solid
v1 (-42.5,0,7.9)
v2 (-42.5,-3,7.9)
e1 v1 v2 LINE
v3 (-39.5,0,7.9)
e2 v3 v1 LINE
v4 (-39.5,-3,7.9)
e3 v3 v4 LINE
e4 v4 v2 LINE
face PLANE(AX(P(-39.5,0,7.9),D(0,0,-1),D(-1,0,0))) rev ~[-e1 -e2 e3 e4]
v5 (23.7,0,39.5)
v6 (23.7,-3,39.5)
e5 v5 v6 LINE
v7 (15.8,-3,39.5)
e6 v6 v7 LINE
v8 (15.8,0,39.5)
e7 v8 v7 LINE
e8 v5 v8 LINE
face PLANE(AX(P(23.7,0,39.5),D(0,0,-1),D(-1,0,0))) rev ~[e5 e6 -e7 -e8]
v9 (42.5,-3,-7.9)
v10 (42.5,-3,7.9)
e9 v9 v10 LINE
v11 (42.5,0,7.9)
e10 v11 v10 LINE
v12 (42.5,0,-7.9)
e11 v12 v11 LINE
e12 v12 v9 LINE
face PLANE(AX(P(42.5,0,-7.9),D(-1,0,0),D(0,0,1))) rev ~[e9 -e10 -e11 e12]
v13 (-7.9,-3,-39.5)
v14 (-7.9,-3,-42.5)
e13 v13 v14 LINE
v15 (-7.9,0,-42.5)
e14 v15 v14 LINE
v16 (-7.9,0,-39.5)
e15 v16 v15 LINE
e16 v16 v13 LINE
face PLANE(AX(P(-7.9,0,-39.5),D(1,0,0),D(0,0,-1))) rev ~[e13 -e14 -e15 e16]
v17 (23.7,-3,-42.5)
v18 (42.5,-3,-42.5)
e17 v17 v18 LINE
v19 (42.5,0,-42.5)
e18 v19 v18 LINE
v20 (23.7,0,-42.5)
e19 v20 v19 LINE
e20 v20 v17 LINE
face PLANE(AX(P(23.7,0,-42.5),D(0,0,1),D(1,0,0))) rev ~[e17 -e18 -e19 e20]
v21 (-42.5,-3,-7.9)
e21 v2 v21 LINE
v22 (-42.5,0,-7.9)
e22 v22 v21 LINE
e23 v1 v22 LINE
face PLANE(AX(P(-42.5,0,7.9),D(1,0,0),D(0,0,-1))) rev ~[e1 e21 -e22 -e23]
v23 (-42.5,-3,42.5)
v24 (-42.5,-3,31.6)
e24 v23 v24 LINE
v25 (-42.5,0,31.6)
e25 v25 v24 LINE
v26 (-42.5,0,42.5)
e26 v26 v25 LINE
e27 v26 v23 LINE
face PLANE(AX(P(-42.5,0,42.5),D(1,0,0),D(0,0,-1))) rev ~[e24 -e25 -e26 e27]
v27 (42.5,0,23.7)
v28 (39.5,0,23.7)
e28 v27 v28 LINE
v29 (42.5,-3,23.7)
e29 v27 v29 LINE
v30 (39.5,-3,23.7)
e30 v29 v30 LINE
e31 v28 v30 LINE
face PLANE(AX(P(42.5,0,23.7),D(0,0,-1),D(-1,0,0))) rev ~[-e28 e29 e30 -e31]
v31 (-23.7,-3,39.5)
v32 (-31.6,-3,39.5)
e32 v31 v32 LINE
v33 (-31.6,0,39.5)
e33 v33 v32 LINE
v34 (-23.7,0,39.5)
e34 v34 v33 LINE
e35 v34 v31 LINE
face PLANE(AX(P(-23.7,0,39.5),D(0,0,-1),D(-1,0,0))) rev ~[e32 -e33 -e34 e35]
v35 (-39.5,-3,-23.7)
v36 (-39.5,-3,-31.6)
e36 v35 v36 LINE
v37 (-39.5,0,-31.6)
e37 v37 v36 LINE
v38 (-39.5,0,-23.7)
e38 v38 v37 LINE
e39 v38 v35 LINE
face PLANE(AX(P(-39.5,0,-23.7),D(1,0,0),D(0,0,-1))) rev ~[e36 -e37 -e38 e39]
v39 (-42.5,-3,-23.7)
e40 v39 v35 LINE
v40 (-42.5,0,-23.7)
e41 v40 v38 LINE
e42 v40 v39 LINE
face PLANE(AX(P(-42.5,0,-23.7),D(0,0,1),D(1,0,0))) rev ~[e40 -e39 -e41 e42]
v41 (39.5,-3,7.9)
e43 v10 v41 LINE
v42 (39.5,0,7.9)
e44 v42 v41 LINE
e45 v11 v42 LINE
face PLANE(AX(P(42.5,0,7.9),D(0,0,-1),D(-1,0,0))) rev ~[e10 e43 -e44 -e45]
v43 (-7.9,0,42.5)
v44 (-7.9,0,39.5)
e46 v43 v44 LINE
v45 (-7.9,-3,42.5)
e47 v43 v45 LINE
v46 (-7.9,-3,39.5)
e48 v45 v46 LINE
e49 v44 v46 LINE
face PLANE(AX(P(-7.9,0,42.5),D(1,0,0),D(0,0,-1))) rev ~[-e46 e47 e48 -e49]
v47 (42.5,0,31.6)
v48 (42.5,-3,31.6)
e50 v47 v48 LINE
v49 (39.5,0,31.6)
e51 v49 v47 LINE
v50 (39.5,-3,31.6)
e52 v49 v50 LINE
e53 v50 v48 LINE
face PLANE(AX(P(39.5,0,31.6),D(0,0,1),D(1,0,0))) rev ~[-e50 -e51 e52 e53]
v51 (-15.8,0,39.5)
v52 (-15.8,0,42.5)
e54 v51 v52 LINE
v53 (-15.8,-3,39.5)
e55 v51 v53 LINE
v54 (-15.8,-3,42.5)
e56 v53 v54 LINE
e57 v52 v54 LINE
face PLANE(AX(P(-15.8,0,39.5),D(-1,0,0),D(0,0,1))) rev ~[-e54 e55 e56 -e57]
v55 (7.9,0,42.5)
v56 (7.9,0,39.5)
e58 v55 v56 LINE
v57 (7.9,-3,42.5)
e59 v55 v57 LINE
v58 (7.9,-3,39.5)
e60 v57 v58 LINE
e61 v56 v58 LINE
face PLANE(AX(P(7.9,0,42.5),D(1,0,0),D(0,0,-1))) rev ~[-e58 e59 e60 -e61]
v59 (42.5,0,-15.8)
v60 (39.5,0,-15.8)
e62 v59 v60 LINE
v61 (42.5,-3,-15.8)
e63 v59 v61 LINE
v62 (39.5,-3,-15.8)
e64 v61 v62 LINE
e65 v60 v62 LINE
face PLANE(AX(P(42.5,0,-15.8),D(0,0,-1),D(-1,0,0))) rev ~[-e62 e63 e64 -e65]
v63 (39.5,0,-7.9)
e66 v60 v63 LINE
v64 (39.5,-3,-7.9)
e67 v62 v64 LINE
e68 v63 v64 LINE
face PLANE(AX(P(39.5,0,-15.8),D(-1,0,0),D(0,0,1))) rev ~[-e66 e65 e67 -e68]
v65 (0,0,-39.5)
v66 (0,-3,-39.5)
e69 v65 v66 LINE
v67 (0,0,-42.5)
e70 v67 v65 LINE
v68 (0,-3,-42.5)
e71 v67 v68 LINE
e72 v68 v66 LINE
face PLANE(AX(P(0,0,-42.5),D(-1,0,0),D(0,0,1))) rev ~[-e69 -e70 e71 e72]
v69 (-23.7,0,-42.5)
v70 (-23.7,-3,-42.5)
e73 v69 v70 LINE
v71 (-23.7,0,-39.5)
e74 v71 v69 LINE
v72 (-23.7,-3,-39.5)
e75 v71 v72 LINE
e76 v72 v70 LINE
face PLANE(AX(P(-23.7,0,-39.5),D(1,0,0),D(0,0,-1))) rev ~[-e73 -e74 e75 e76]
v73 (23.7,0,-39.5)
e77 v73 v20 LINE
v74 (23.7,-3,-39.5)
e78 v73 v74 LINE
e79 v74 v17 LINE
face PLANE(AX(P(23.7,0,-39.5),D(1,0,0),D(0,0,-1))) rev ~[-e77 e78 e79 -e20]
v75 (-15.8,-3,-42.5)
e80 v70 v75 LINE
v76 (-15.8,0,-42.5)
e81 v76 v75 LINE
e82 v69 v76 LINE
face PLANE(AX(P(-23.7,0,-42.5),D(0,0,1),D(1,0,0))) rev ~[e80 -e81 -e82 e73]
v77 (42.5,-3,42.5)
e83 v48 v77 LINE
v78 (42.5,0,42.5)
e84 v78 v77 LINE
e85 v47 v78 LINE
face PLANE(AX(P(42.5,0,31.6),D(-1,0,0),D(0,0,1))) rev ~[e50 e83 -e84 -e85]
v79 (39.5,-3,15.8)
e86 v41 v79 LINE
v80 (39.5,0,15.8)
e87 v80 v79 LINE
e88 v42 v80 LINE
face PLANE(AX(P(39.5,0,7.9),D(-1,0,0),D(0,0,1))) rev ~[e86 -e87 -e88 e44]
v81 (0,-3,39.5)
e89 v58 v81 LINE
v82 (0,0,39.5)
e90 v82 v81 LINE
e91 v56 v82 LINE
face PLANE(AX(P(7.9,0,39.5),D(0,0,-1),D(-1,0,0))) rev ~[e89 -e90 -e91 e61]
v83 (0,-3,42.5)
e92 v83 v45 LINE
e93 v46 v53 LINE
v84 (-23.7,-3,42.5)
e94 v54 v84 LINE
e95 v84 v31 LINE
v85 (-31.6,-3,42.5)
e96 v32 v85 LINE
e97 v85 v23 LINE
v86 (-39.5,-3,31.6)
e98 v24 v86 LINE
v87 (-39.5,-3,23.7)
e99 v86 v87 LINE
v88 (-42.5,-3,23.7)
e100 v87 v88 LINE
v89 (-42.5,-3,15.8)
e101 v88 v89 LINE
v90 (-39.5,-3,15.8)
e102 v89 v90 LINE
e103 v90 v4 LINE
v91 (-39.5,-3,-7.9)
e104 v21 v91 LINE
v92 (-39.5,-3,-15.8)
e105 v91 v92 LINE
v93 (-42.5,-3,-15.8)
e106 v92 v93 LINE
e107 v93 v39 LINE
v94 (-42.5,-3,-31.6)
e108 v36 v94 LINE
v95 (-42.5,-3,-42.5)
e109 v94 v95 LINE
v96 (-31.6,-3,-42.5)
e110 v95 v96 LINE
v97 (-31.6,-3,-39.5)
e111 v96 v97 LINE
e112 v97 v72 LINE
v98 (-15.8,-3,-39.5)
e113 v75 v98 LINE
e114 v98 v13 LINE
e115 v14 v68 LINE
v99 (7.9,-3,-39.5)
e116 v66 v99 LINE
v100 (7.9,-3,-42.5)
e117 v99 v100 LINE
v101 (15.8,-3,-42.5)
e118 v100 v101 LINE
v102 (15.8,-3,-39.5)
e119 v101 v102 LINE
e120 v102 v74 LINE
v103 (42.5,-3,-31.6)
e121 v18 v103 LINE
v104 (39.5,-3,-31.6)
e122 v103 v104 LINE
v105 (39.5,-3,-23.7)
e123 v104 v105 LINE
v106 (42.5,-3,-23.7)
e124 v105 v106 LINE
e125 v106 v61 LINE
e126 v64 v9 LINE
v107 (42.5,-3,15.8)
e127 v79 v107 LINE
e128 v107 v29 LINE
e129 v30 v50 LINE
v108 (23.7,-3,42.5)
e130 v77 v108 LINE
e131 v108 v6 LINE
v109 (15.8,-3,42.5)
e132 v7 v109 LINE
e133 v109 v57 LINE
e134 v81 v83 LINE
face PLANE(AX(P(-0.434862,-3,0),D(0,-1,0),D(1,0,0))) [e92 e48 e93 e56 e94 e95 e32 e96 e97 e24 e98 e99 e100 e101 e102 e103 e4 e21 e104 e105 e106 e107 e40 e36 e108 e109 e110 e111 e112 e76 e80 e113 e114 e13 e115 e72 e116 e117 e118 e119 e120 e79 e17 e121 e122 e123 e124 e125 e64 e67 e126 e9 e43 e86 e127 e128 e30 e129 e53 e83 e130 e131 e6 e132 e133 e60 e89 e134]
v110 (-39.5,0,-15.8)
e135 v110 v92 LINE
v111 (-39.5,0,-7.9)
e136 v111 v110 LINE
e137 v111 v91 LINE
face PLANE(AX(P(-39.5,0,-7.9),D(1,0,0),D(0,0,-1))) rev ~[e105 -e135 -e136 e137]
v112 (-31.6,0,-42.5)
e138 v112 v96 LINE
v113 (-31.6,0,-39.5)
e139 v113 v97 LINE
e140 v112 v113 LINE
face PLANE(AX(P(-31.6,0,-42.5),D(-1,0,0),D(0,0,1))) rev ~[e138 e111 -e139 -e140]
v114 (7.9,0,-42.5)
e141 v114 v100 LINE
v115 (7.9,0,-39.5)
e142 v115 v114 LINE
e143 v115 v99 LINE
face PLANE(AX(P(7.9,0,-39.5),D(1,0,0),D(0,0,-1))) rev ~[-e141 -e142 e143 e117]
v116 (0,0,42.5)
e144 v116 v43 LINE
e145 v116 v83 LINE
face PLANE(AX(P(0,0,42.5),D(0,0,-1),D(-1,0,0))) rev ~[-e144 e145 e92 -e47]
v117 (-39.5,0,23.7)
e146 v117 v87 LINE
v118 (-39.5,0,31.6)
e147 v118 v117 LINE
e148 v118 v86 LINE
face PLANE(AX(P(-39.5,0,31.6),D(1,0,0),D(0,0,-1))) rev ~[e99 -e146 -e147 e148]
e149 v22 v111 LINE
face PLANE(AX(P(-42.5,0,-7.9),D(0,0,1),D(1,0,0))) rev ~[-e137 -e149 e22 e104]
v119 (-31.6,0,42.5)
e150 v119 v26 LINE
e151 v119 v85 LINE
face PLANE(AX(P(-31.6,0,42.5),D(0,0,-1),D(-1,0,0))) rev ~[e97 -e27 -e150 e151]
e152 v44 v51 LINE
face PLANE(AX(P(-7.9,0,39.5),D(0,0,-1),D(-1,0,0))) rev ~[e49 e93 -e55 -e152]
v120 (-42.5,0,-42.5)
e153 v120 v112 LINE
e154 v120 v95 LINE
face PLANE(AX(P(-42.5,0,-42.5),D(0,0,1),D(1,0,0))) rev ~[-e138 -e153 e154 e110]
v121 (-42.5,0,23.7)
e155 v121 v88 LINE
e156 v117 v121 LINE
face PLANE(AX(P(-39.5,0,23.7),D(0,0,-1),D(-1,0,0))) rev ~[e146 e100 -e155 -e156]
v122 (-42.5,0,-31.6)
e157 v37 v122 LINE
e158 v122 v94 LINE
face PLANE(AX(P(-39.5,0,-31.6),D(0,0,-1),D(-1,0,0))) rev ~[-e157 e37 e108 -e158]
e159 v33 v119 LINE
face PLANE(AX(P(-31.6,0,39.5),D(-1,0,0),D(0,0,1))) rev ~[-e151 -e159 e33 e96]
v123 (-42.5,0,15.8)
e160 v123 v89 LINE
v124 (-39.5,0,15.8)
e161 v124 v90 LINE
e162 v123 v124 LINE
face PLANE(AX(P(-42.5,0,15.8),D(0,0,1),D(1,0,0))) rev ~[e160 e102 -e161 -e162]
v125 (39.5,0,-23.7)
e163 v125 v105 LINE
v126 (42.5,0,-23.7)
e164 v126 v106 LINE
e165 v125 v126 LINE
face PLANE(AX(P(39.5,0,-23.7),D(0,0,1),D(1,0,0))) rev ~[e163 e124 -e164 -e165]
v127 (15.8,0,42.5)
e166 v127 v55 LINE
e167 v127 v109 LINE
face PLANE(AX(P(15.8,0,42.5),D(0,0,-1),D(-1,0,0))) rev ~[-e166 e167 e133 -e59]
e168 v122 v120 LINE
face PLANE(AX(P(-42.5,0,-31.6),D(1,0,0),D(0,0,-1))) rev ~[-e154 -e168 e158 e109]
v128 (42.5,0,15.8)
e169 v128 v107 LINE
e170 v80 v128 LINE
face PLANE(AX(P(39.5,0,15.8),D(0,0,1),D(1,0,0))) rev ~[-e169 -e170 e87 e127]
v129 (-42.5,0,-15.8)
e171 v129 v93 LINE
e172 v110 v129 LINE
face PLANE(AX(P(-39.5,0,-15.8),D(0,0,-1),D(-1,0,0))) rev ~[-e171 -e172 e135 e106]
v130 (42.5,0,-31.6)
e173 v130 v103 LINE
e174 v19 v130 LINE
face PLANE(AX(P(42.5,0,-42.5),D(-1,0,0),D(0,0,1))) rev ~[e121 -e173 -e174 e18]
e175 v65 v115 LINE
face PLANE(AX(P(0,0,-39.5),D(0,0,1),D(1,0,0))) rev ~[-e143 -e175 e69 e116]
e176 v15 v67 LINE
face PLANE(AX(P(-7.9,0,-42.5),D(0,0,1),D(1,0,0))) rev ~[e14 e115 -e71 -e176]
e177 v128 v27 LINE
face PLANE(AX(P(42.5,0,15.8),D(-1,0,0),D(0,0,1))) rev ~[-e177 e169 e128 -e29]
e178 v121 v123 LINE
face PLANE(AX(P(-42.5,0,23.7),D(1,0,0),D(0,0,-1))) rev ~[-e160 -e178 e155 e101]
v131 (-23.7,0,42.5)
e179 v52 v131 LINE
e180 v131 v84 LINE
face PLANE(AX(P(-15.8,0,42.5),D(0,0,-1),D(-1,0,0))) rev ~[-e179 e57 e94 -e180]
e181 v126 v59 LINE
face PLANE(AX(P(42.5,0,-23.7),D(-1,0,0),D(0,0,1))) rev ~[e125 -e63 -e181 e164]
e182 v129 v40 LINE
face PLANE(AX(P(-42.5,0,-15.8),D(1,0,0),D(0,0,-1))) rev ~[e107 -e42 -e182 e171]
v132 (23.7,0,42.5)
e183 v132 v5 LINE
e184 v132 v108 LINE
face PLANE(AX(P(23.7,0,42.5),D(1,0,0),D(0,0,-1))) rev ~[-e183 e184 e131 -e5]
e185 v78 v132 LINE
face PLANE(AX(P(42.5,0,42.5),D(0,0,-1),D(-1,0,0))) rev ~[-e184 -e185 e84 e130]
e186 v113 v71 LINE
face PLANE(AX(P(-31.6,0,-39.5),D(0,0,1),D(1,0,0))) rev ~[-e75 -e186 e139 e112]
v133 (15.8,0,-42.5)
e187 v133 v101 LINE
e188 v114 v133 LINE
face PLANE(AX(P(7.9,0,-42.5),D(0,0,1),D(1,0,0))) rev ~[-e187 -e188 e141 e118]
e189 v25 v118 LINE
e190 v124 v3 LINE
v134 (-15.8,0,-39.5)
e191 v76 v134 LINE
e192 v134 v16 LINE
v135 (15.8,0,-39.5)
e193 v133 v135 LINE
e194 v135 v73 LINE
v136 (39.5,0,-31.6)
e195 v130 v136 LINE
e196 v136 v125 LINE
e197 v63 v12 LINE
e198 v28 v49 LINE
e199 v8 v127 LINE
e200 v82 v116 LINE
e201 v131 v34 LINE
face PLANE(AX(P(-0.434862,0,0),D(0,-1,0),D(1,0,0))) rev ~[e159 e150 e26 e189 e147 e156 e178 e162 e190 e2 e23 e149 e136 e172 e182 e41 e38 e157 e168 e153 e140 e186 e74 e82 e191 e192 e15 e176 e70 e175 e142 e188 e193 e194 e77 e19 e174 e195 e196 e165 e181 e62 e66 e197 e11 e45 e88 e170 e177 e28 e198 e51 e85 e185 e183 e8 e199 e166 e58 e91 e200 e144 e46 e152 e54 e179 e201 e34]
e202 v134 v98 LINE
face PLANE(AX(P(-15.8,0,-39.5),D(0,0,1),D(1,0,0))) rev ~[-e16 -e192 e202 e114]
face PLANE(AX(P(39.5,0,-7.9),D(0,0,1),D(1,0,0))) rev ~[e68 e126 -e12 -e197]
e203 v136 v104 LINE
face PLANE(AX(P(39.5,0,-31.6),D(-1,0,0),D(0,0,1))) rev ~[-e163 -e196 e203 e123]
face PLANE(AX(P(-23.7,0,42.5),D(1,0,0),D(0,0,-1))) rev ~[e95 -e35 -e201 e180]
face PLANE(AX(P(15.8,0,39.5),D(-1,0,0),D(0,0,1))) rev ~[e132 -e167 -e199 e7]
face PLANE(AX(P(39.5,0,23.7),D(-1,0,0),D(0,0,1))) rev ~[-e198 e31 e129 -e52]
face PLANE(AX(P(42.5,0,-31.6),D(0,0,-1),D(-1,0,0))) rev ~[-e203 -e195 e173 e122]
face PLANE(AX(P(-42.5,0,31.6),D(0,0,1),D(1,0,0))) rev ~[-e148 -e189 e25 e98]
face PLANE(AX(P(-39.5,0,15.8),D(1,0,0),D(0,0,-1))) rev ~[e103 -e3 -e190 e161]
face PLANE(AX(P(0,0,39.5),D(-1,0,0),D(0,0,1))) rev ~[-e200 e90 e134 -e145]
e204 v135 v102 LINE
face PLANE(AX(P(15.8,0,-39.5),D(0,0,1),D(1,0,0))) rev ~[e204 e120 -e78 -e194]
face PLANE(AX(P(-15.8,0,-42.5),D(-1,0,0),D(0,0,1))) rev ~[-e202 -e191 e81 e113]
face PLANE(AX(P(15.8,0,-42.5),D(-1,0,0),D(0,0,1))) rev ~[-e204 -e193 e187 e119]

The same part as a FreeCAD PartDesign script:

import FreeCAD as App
import Part
import Sketcher
from FreeCAD import Vector
Q = App.Units.Quantity


def add_polygon(sketch, points):
    """Adds a closed chain of lines whose ends are joined by coincident constraints."""
    first, n = sketch.GeometryCount, len(points)
    for a, b in zip(points, points[1:] + points[:1]):
        sketch.addGeometry(Part.LineSegment(App.Vector(*a, 0), App.Vector(*b, 0)), False)
    for i in range(n):
        sketch.addConstraint(Sketcher.Constraint("Coincident", first + i, 2, first + (i + 1) % n, 1))

doc = App.newDocument("Part")
body = doc.addObject("PartDesign::Body", "Body")

sketch1 = body.newObject("Sketcher::SketchObject", "Sketch")
sketch1.AttachmentSupport = (doc.getObject("XZ_Plane"), [""])
sketch1.MapMode = "FlatFace"
add_polygon(sketch1, [(-42.5, -31.6), (-42.5, -42.5), (-31.6, -42.5), (-31.6, -39.5), (-23.7, -39.5), (-23.7, -42.5), (-15.8, -42.5), (-15.8, -39.5), (-7.9, -39.5), (-7.9, -42.5), (0, -42.5), (0, -39.5), (7.9, -39.5), (7.9, -42.5), (15.8, -42.5), (15.8, -39.5), (23.7, -39.5), (23.7, -42.5), (42.5, -42.5), (42.5, -31.6), (39.5, -31.6), (39.5, -23.7), (42.5, -23.7), (42.5, -15.8), (39.5, -15.8), (39.5, -7.9), (42.5, -7.9), (42.5, 7.9), (39.5, 7.9), (39.5, 15.8), (42.5, 15.8), (42.5, 23.7), (39.5, 23.7), (39.5, 31.6), (42.5, 31.6), (42.5, 42.5), (23.7, 42.5), (23.7, 39.5), (15.8, 39.5), (15.8, 42.5), (7.9, 42.5), (7.9, 39.5), (0, 39.5), (0, 42.5), (-7.9, 42.5), (-7.9, 39.5), (-15.8, 39.5), (-15.8, 42.5), (-23.7, 42.5), (-23.7, 39.5), (-31.6, 39.5), (-31.6, 42.5), (-42.5, 42.5), (-42.5, 31.6), (-39.5, 31.6), (-39.5, 23.7), (-42.5, 23.7), (-42.5, 15.8), (-39.5, 15.8), (-39.5, 7.9), (-42.5, 7.9), (-42.5, -7.9), (-39.5, -7.9), (-39.5, -15.8), (-42.5, -15.8), (-42.5, -23.7), (-39.5, -23.7), (-39.5, -31.6)])
sketch1.addConstraint(Sketcher.Constraint("Vertical", 0))
sketch1.addConstraint(Sketcher.Constraint("Horizontal", 1))
sketch1.addConstraint(Sketcher.Constraint("Vertical", 2))
sketch1.addConstraint(Sketcher.Constraint("Horizontal", 3))
sketch1.addConstraint(Sketcher.Constraint("Vertical", 4))
sketch1.addConstraint(Sketcher.Constraint("Horizontal", 5))
sketch1.addConstraint(Sketcher.Constraint("Vertical", 6))
sketch1.addConstraint(Sketcher.Constraint("Horizontal", 7))
sketch1.addConstraint(Sketcher.Constraint("Vertical", 8))
sketch1.addConstraint(Sketcher.Constraint("Horizontal", 9))
sketch1.addConstraint(Sketcher.Constraint("Vertical", 10))
sketch1.addConstraint(Sketcher.Constraint("Horizontal", 11))
sketch1.addConstraint(Sketcher.Constraint("Vertical", 12))
sketch1.addConstraint(Sketcher.Constraint("Horizontal", 13))
sketch1.addConstraint(Sketcher.Constraint("Vertical", 14))
sketch1.addConstraint(Sketcher.Constraint("Horizontal", 15))
sketch1.addConstraint(Sketcher.Constraint("Vertical", 16))
sketch1.addConstraint(Sketcher.Constraint("Horizontal", 17))
sketch1.addConstraint(Sketcher.Constraint("Vertical", 18))
sketch1.addConstraint(Sketcher.Constraint("Horizontal", 19))
sketch1.addConstraint(Sketcher.Constraint("Vertical", 20))
sketch1.addConstraint(Sketcher.Constraint("Horizontal", 21))
sketch1.addConstraint(Sketcher.Constraint("Vertical", 22))
sketch1.addConstraint(Sketcher.Constraint("Horizontal", 23))
sketch1.addConstraint(Sketcher.Constraint("Vertical", 24))
sketch1.addConstraint(Sketcher.Constraint("Horizontal", 25))
sketch1.addConstraint(Sketcher.Constraint("Vertical", 26))
sketch1.addConstraint(Sketcher.Constraint("Horizontal", 27))
sketch1.addConstraint(Sketcher.Constraint("Vertical", 28))
sketch1.addConstraint(Sketcher.Constraint("Horizontal", 29))
sketch1.addConstraint(Sketcher.Constraint("Vertical", 30))
sketch1.addConstraint(Sketcher.Constraint("Horizontal", 31))
sketch1.addConstraint(Sketcher.Constraint("Vertical", 32))
sketch1.addConstraint(Sketcher.Constraint("Horizontal", 33))
sketch1.addConstraint(Sketcher.Constraint("Vertical", 34))
sketch1.addConstraint(Sketcher.Constraint("Horizontal", 35))
sketch1.addConstraint(Sketcher.Constraint("Vertical", 36))
sketch1.addConstraint(Sketcher.Constraint("Horizontal", 37))
sketch1.addConstraint(Sketcher.Constraint("Vertical", 38))
sketch1.addConstraint(Sketcher.Constraint("Horizontal", 39))
sketch1.addConstraint(Sketcher.Constraint("Vertical", 40))
sketch1.addConstraint(Sketcher.Constraint("Horizontal", 41))
sketch1.addConstraint(Sketcher.Constraint("Vertical", 42))
sketch1.addConstraint(Sketcher.Constraint("Horizontal", 43))
sketch1.addConstraint(Sketcher.Constraint("Vertical", 44))
sketch1.addConstraint(Sketcher.Constraint("Horizontal", 45))
sketch1.addConstraint(Sketcher.Constraint("Vertical", 46))
sketch1.addConstraint(Sketcher.Constraint("Horizontal", 47))
sketch1.addConstraint(Sketcher.Constraint("Vertical", 48))
sketch1.addConstraint(Sketcher.Constraint("Horizontal", 49))
sketch1.addConstraint(Sketcher.Constraint("Vertical", 50))
sketch1.addConstraint(Sketcher.Constraint("Horizontal", 51))
sketch1.addConstraint(Sketcher.Constraint("Vertical", 52))
sketch1.addConstraint(Sketcher.Constraint("Horizontal", 53))
sketch1.addConstraint(Sketcher.Constraint("Vertical", 54))
sketch1.addConstraint(Sketcher.Constraint("Horizontal", 55))
sketch1.addConstraint(Sketcher.Constraint("Vertical", 56))
sketch1.addConstraint(Sketcher.Constraint("Horizontal", 57))
sketch1.addConstraint(Sketcher.Constraint("Vertical", 58))
sketch1.addConstraint(Sketcher.Constraint("Horizontal", 59))
sketch1.addConstraint(Sketcher.Constraint("Vertical", 60))
sketch1.addConstraint(Sketcher.Constraint("Horizontal", 61))
sketch1.addConstraint(Sketcher.Constraint("Vertical", 62))
sketch1.addConstraint(Sketcher.Constraint("Horizontal", 63))
sketch1.addConstraint(Sketcher.Constraint("Vertical", 64))
sketch1.addConstraint(Sketcher.Constraint("Horizontal", 65))
sketch1.addConstraint(Sketcher.Constraint("Vertical", 66))
sketch1.addConstraint(Sketcher.Constraint("Horizontal", 67))
sketch1.addConstraint(Sketcher.Constraint("Symmetric", 0, 2, 34, 2, -1, 1))
sketch1.addConstraint(Sketcher.Constraint("Symmetric", 4, 2, 35, 2, -1, 1))
sketch1.addConstraint(Sketcher.Constraint("Symmetric", 6, 2, 37, 2, -1, 1))
sketch1.addConstraint(Sketcher.Constraint("Symmetric", 8, 2, 39, 2, -1, 1))
sketch1.addConstraint(Sketcher.Constraint("Symmetric", 10, 2, 41, 2, -1, 1))
sketch1.addConstraint(Sketcher.Constraint("Symmetric", 12, 2, 43, 2, -1, 1))
sketch1.addConstraint(Sketcher.Constraint("Symmetric", 14, 2, 45, 2, -1, 1))
sketch1.addConstraint(Sketcher.Constraint("Symmetric", 16, 2, 47, 2, -1, 1))
sketch1.addConstraint(Sketcher.Constraint("Symmetric", 17, 2, 51, 2, -1, 1))
sketch1.addConstraint(Sketcher.Constraint("Symmetric", 19, 2, 53, 2, -1, 1))
sketch1.addConstraint(Sketcher.Constraint("Symmetric", 21, 2, 55, 2, -1, 1))
sketch1.addConstraint(Sketcher.Constraint("Symmetric", 23, 2, 57, 2, -1, 1))
sketch1.addConstraint(Sketcher.Constraint("Symmetric", 25, 2, 59, 2, -1, 1))
sketch1.addConstraint(Sketcher.Constraint("Symmetric", 27, 2, 61, 2, -1, 1))
sketch1.addConstraint(Sketcher.Constraint("Symmetric", 29, 2, 63, 2, -1, 1))
sketch1.addConstraint(Sketcher.Constraint("Symmetric", 31, 2, 65, 2, -1, 1))
sketch1.addConstraint(Sketcher.Constraint("Symmetric", 7, 2, 11, 2, -2))
sketch1.addConstraint(Sketcher.Constraint("Symmetric", 5, 2, 13, 2, -2))
sketch1.addConstraint(Sketcher.Constraint("Symmetric", 3, 2, 15, 2, -2))
sketch1.addConstraint(Sketcher.Constraint("Symmetric", 0, 2, 17, 2, -2))
sketch1.addConstraint(Sketcher.Constraint("Symmetric", 32, 2, 53, 2, -2))
sketch1.addConstraint(Sketcher.Constraint("Symmetric", 30, 2, 55, 2, -2))
sketch1.addConstraint(Sketcher.Constraint("Symmetric", 28, 2, 57, 2, -2))
sketch1.addConstraint(Sketcher.Constraint("Symmetric", 9, 2, 42, 2, -1))
sketch1.addConstraint(Sketcher.Constraint("Symmetric", 2, 2, 49, 2, -1))
sketch1.addConstraint(Sketcher.Constraint("Horizontal", 3, 2, 6, 2))
sketch1.addConstraint(Sketcher.Constraint("Horizontal", 27, 2, 58, 2))
sketch1.addConstraint(Sketcher.Constraint("Horizontal", 19, 2, 66, 2))
sketch1.addConstraint(Sketcher.Constraint("Vertical", 18, 2, 21, 2))
sketch1.addConstraint(Sketcher.Constraint("Vertical", 20, 2, 23, 2))
sketch1.addConstraint(Sketcher.Constraint("Vertical", 22, 2, 25, 2))
sketch1.addConstraint(Sketcher.Constraint("Equal", 3, 5))
sketch1.addConstraint(Sketcher.Constraint("Equal", 5, 7))
sketch1.addConstraint(Sketcher.Constraint("Equal", 7, 9))
sketch1.addConstraint(Sketcher.Constraint("Equal", 51, 0))
sketch1.addConstraint(Sketcher.Constraint("Equal", 67, 2))
sketch1.addConstraint(Sketcher.Constraint("Equal", 49, 20))
sketch1.addConstraint(Sketcher.Constraint("Equal", 20, 22))
sketch1.addConstraint(Sketcher.Constraint("Equal", 22, 24))
sketch1.addConstraint(Sketcher.Constraint("DistanceX", 19, 2, 19, 1, Q("3 mm")))
sketch1.addConstraint(Sketcher.Constraint("DistanceX", 1, 1, 1, 2, Q("10.9 mm")))
sketch1.addConstraint(Sketcher.Constraint("DistanceX", 3, 1, 3, 2, Q("7.9 mm")))
sketch1.addConstraint(Sketcher.Constraint("DistanceY", 26, 1, 26, 2, Q("15.8 mm")))
pad1 = body.newObject("PartDesign::Pad", "Pad")
pad1.Profile = sketch1
pad1.Length = 3

doc.recompute()
